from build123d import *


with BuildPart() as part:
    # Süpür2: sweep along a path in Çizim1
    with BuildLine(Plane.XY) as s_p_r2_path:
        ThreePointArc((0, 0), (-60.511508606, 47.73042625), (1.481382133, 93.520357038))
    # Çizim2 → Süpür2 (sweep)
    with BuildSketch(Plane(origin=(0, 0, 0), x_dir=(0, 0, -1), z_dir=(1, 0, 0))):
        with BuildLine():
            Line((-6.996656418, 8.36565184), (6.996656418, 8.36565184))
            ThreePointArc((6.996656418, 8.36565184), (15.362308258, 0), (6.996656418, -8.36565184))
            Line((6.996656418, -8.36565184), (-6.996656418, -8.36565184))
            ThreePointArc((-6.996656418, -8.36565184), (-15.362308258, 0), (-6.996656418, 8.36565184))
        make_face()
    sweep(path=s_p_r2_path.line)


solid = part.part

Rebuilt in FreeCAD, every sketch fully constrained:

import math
import FreeCAD as App
import Part
import Sketcher

V = App.Vector
Q = App.Units.Quantity

doc = App.newDocument("Part")
body = doc.addObject("PartDesign::Body", "Body")

# Sketch on YZ plane
sketch1 = doc.addObject("Sketcher::SketchObject", "Sketch")
body.addObject(sketch1)
sketch1.AttachmentSupport = (doc.YZ_Plane, [""])
sketch1.MapMode = "FlatFace"
sketch1.addGeometry([
    Part.LineSegment(V(8.365652, -6.996656, 0), V(8.365652, 6.996656, 0)),
    Part.ArcOfCircle(Part.Circle(V(0, 6.996656, 0), V(0, 0, 1), 8.365652), math.radians(0), math.radians(180)),
    Part.LineSegment(V(-8.365652, 6.996656, 0), V(-8.365652, -6.996656, 0)),
    Part.ArcOfCircle(Part.Circle(V(0, -6.996656, 0), V(0, 0, 1), 8.365652), math.radians(180), math.radians(360)),
], False)
sketch1.addConstraint([
    Sketcher.Constraint("Tangent", 0, 2, 1, 1),
    Sketcher.Constraint("Tangent", 1, 2, 2, 1),
    Sketcher.Constraint("Tangent", 2, 2, 3, 1),
    Sketcher.Constraint("Tangent", 3, 2, 0, 1),
    Sketcher.Constraint("Vertical", 0),
    Sketcher.Constraint("Vertical", 2),
    Sketcher.Constraint("Symmetric", 1, 3, 3, 3, -1, 1),
    Sketcher.Constraint("Radius", 1, Q("8.365652 mm")),
    Sketcher.Constraint("DistanceY", 0, 1, 0, 2, Q("13.993313 mm")),
])

# Sketch on XY plane
sketch2 = doc.addObject("Sketcher::SketchObject", "Sketch001")
body.addObject(sketch2)
sketch2.AttachmentSupport = (doc.XY_Plane, [""])
sketch2.MapMode = "FlatFace"
sketch2.addGeometry(Part.ArcOfCircle(Part.Circle(V(-12.036953, 46.962579, 0), V(0, 0, 1), 48.480636), math.radians(73.809022), math.radians(284.375976)), False)
sketch2.addConstraint([
    Sketcher.Constraint("Coincident", 0, 2, -1, 1),
    Sketcher.Constraint("Radius", 0, Q("48.480636 mm")),
    Sketcher.Constraint("DistanceY", -1, 1, 0, 3, Q("46.962579 mm")),
    Sketcher.Constraint("DistanceX", -1, 1, 0, 1, Q("1.481382 mm")),
])
doc.recompute()

additivepipe = doc.addObject("PartDesign::AdditivePipe", "AdditivePipe")
body.addObject(additivepipe)
additivepipe.Profile = sketch1
additivepipe.Spine = (sketch2, ["Edge1"])

doc.recompute()
